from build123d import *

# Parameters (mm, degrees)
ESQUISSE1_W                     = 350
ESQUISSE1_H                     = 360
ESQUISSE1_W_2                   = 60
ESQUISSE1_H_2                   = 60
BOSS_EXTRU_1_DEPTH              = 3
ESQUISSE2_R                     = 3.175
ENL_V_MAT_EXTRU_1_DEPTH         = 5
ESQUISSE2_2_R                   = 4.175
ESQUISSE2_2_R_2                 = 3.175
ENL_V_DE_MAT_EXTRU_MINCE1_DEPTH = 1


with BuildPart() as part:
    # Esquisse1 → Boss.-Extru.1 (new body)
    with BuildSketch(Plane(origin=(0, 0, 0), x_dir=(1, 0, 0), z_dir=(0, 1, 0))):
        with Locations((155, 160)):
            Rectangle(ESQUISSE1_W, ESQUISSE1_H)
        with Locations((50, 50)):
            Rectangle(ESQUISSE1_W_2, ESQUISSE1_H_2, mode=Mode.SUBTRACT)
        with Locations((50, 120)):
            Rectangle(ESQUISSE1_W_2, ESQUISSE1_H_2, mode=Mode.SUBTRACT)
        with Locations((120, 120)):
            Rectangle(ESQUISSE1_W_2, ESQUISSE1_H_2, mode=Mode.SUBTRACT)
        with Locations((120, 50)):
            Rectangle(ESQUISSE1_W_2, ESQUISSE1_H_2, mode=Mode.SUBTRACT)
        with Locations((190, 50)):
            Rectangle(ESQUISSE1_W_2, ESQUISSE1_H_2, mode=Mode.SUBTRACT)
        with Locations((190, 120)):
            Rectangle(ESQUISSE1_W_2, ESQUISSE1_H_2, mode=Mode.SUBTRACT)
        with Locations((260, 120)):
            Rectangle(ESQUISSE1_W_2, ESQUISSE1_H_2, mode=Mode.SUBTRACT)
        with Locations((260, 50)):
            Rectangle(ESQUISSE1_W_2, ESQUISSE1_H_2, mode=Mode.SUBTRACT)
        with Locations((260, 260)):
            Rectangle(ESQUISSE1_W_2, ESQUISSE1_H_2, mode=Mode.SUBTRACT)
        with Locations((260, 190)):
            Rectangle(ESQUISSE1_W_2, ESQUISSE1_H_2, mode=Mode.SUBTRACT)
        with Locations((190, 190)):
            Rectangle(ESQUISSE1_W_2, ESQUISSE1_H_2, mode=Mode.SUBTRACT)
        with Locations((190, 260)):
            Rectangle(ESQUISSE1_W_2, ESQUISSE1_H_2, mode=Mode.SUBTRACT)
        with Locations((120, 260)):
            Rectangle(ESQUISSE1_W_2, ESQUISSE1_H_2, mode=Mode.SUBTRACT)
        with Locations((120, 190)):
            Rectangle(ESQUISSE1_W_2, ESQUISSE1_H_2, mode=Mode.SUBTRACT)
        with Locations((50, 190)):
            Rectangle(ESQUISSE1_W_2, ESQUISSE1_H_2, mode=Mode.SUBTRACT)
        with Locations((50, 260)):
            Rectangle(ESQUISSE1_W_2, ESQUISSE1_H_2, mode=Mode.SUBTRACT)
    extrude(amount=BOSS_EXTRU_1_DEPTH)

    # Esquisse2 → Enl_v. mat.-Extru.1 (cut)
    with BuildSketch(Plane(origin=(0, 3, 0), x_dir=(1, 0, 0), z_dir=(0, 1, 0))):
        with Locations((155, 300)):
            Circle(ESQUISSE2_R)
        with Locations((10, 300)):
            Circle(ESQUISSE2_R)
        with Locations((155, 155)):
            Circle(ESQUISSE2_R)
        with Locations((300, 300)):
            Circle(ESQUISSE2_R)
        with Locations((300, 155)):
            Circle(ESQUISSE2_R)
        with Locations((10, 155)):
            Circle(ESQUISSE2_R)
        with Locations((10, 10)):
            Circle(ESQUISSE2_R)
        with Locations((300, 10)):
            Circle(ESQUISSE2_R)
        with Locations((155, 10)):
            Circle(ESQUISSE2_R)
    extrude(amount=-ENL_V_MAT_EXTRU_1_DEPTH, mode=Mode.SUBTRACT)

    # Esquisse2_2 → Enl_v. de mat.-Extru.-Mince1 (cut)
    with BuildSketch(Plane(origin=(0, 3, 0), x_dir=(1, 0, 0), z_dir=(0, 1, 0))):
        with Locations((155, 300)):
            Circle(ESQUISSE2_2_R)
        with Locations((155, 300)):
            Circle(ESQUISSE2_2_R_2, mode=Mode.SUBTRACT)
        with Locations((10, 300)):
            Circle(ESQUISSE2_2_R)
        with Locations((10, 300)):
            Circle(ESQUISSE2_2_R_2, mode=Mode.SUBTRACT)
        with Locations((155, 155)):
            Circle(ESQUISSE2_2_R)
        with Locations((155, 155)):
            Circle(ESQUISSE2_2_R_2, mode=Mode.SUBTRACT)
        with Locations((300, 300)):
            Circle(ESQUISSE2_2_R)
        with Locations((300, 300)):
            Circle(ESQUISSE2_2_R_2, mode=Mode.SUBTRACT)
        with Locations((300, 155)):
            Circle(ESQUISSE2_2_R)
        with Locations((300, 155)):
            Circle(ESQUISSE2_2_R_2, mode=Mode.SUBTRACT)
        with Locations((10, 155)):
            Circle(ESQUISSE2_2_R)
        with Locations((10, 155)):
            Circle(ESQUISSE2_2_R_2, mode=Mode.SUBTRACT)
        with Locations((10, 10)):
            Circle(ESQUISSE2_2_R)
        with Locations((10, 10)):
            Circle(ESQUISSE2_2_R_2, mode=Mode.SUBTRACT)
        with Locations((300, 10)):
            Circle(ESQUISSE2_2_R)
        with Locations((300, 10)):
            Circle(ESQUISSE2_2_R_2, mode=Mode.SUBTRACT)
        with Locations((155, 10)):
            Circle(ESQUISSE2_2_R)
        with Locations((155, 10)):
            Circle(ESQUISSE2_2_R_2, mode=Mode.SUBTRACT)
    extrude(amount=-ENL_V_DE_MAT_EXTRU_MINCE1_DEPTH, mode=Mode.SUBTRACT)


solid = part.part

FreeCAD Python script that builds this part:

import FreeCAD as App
import Part
import Sketcher

V = App.Vector
Q = App.Units.Quantity


def add_polygon(sketch, points):
    """Adds a closed chain of lines whose ends are joined by coincident constraints."""
    first, n = sketch.GeometryCount, len(points)
    for a, b in zip(points, points[1:] + points[:1]):
        sketch.addGeometry(Part.LineSegment(App.Vector(*a, 0), App.Vector(*b, 0)), False)
    for i in range(n):
        sketch.addConstraint(Sketcher.Constraint("Coincident", first + i, 2, first + (i + 1) % n, 1))

doc = App.newDocument("Part")
params = doc.addObject("Spreadsheet::Sheet", "Params")
for row, (alias, value) in enumerate([
    ("sketch1_width", "350 mm"),
    ("sketch1_width2", "60 mm"),
    ("sketch1_height", "360 mm"),
    ("pad1_length", "3 mm"),
    ("sketch2_diameter", "6.35 mm"),
    ("pocket1_length", "5 mm"),
    ("sketch3_diameter", "8.35 mm"),
    ("sketch3_diameter2", "6.35 mm"),
    ("pocket2_length", "1 mm"),
], start=1):
    params.set(f"A{row}", alias)
    params.set(f"B{row}", "=" + value)
    params.setAlias(f"B{row}", alias)

body = doc.addObject("PartDesign::Body", "Body")

# Sketch on XZ plane
sketch1 = doc.addObject("Sketcher::SketchObject", "Sketch")
body.addObject(sketch1)
sketch1.AttachmentSupport = (doc.XZ_Plane, [""])
sketch1.MapMode = "FlatFace"
add_polygon(sketch1, [(-20, -340), (-20, 20), (330, 20), (330, -340)])  # lines 0-3
add_polygon(sketch1, [(80, -20), (20, -20), (20, -80), (80, -80)])  # lines 4-7
add_polygon(sketch1, [(150, -20), (90, -20), (90, -80), (150, -80)])  # lines 8-11
add_polygon(sketch1, [(80, -90), (20, -90), (20, -150), (80, -150)])  # lines 12-15
add_polygon(sketch1, [(150, -90), (90, -90), (90, -150), (150, -150)])  # lines 16-19
add_polygon(sketch1, [(220, -20), (160, -20), (160, -80), (220, -80)])  # lines 20-23
add_polygon(sketch1, [(290, -20), (230, -20), (230, -80), (290, -80)])  # lines 24-27
add_polygon(sketch1, [(220, -90), (160, -90), (160, -150), (220, -150)])  # lines 28-31
add_polygon(sketch1, [(290, -90), (230, -90), (230, -150), (290, -150)])  # lines 32-35
add_polygon(sketch1, [(80, -160), (20, -160), (20, -220), (80, -220)])  # lines 36-39
add_polygon(sketch1, [(150, -160), (90, -160), (90, -220), (150, -220)])  # lines 40-43
add_polygon(sketch1, [(80, -230), (20, -230), (20, -290), (80, -290)])  # lines 44-47
add_polygon(sketch1, [(150, -230), (90, -230), (90, -290), (150, -290)])  # lines 48-51
add_polygon(sketch1, [(220, -160), (160, -160), (160, -220), (220, -220)])  # lines 52-55
add_polygon(sketch1, [(290, -160), (230, -160), (230, -220), (290, -220)])  # lines 56-59
add_polygon(sketch1, [(220, -230), (160, -230), (160, -290), (220, -290)])  # lines 60-63
add_polygon(sketch1, [(290, -230), (230, -230), (230, -290), (290, -290)])  # lines 64-67
sketch1.addConstraint([
    Sketcher.Constraint("Vertical", 0),
    Sketcher.Constraint("Horizontal", 1),
    Sketcher.Constraint("Vertical", 2),
    Sketcher.Constraint("Horizontal", 3),
    Sketcher.Constraint("Horizontal", 4),
    Sketcher.Constraint("Vertical", 5),
    Sketcher.Constraint("Horizontal", 6),
    Sketcher.Constraint("Vertical", 7),
    Sketcher.Constraint("Horizontal", 8),
    Sketcher.Constraint("Vertical", 9),
    Sketcher.Constraint("Horizontal", 10),
    Sketcher.Constraint("Vertical", 11),
    Sketcher.Constraint("Horizontal", 12),
    Sketcher.Constraint("Vertical", 13),
    Sketcher.Constraint("Horizontal", 14),
    Sketcher.Constraint("Vertical", 15),
    Sketcher.Constraint("Horizontal", 16),
    Sketcher.Constraint("Vertical", 17),
    Sketcher.Constraint("Horizontal", 18),
    Sketcher.Constraint("Vertical", 19),
    Sketcher.Constraint("Horizontal", 20),
    Sketcher.Constraint("Vertical", 21),
    Sketcher.Constraint("Horizontal", 22),
    Sketcher.Constraint("Vertical", 23),
    Sketcher.Constraint("Horizontal", 24),
    Sketcher.Constraint("Vertical", 25),
    Sketcher.Constraint("Horizontal", 26),
    Sketcher.Constraint("Vertical", 27),
    Sketcher.Constraint("Horizontal", 28),
    Sketcher.Constraint("Vertical", 29),
    Sketcher.Constraint("Horizontal", 30),
    Sketcher.Constraint("Vertical", 31),
    Sketcher.Constraint("Horizontal", 32),
    Sketcher.Constraint("Vertical", 33),
    Sketcher.Constraint("Horizontal", 34),
    Sketcher.Constraint("Vertical", 35),
    Sketcher.Constraint("Horizontal", 36),
    Sketcher.Constraint("Vertical", 37),
    Sketcher.Constraint("Horizontal", 38),
    Sketcher.Constraint("Vertical", 39),
    Sketcher.Constraint("Horizontal", 40),
    Sketcher.Constraint("Vertical", 41),
    Sketcher.Constraint("Horizontal", 42),
    Sketcher.Constraint("Vertical", 43),
    Sketcher.Constraint("Horizontal", 44),
    Sketcher.Constraint("Vertical", 45),
    Sketcher.Constraint("Horizontal", 46),
    Sketcher.Constraint("Vertical", 47),
    Sketcher.Constraint("Horizontal", 48),
    Sketcher.Constraint("Vertical", 49),
    Sketcher.Constraint("Horizontal", 50),
    Sketcher.Constraint("Vertical", 51),
    Sketcher.Constraint("Horizontal", 52),
    Sketcher.Constraint("Vertical", 53),
    Sketcher.Constraint("Horizontal", 54),
    Sketcher.Constraint("Vertical", 55),
    Sketcher.Constraint("Horizontal", 56),
    Sketcher.Constraint("Vertical", 57),
    Sketcher.Constraint("Horizontal", 58),
    Sketcher.Constraint("Vertical", 59),
    Sketcher.Constraint("Horizontal", 60),
    Sketcher.Constraint("Vertical", 61),
    Sketcher.Constraint("Horizontal", 62),
    Sketcher.Constraint("Vertical", 63),
    Sketcher.Constraint("Horizontal", 64),
    Sketcher.Constraint("Vertical", 65),
    Sketcher.Constraint("Horizontal", 66),
    Sketcher.Constraint("Vertical", 67),
    Sketcher.Constraint("Symmetric", 0, 2, 4, 2, -1, 1),
    Sketcher.Constraint("Horizontal", 7, 2, 8, 2),
    Sketcher.Constraint("Horizontal", 6, 2, 9, 2),
    Sketcher.Constraint("Horizontal", 15, 2, 16, 2),
    Sketcher.Constraint("Horizontal", 14, 2, 17, 2),
    Sketcher.Constraint("Horizontal", 11, 2, 20, 2),
    Sketcher.Constraint("Horizontal", 10, 2, 21, 2),
    Sketcher.Constraint("Horizontal", 23, 2, 24, 2),
    Sketcher.Constraint("Horizontal", 22, 2, 25, 2),
    Sketcher.Constraint("Horizontal", 19, 2, 28, 2),
    Sketcher.Constraint("Horizontal", 18, 2, 29, 2),
    Sketcher.Constraint("Horizontal", 31, 2, 32, 2),
    Sketcher.Constraint("Horizontal", 30, 2, 33, 2),
    Sketcher.Constraint("Horizontal", 39, 2, 40, 2),
    Sketcher.Constraint("Horizontal", 38, 2, 41, 2),
    Sketcher.Constraint("Horizontal", 47, 2, 48, 2),
    Sketcher.Constraint("Horizontal", 46, 2, 49, 2),
    Sketcher.Constraint("Horizontal", 43, 2, 52, 2),
    Sketcher.Constraint("Horizontal", 42, 2, 53, 2),
    Sketcher.Constraint("Horizontal", 55, 2, 56, 2),
    Sketcher.Constraint("Horizontal", 54, 2, 57, 2),
    Sketcher.Constraint("Horizontal", 51, 2, 60, 2),
    Sketcher.Constraint("Horizontal", 50, 2, 61, 2),
    Sketcher.Constraint("Horizontal", 63, 2, 64, 2),
    Sketcher.Constraint("Horizontal", 62, 2, 65, 2),
    Sketcher.Constraint("Vertical", 5, 2, 12, 2),
    Sketcher.Constraint("Vertical", 7, 2, 14, 2),
    Sketcher.Constraint("Vertical", 9, 2, 16, 2),
    Sketcher.Constraint("Vertical", 11, 2, 18, 2),
    Sketcher.Constraint("Vertical", 21, 2, 28, 2),
    Sketcher.Constraint("Vertical", 23, 2, 30, 2),
    Sketcher.Constraint("Vertical", 25, 2, 32, 2),
    Sketcher.Constraint("Vertical", 27, 2, 34, 2),
    Sketcher.Constraint("Vertical", 13, 2, 36, 2),
    Sketcher.Constraint("Vertical", 15, 2, 38, 2),
    Sketcher.Constraint("Vertical", 17, 2, 40, 2),
    Sketcher.Constraint("Vertical", 19, 2, 42, 2),
    Sketcher.Constraint("Vertical", 37, 2, 44, 2),
    Sketcher.Constraint("Vertical", 39, 2, 46, 2),
    Sketcher.Constraint("Vertical", 41, 2, 48, 2),
    Sketcher.Constraint("Vertical", 43, 2, 50, 2),
    Sketcher.Constraint("Vertical", 29, 2, 52, 2),
    Sketcher.Constraint("Vertical", 31, 2, 54, 2),
    Sketcher.Constraint("Vertical", 33, 2, 56, 2),
    Sketcher.Constraint("Vertical", 35, 2, 58, 2),
    Sketcher.Constraint("Vertical", 53, 2, 60, 2),
    Sketcher.Constraint("Vertical", 55, 2, 62, 2),
    Sketcher.Constraint("Vertical", 57, 2, 64, 2),
    Sketcher.Constraint("Vertical", 59, 2, 66, 2),
    Sketcher.Constraint("Equal", 6, 8),
    Sketcher.Constraint("Equal", 18, 20),
    Sketcher.Constraint("Equal", 22, 24),
    Sketcher.Constraint("Equal", 66, 5),
    Sketcher.Constraint("Equal", 11, 13),
    Sketcher.Constraint("Equal", 35, 37),
    Sketcher.Constraint("Equal", 43, 45),
    Sketcher.Constraint("DistanceX", 1, 1, 1, 2, Q("350 mm")),
    Sketcher.Constraint("DistanceX", 4, 2, 4, 1, Q("60 mm")),
    Sketcher.Constraint("DistanceY", 0, 1, 0, 2, Q("360 mm")),
    Sketcher.Constraint("DistanceX", 0, 2, -1, 1, Q("20 mm")),
    Sketcher.Constraint("DistanceY", -1, 1, 0, 2, Q("20 mm")),
    Sketcher.Constraint("DistanceX", -1, 1, 8, 2, Q("90 mm")),
    Sketcher.Constraint("DistanceY", 12, 2, -1, 1, Q("90 mm")),
    Sketcher.Constraint("DistanceX", -1, 1, 20, 2, Q("160 mm")),
    Sketcher.Constraint("DistanceX", -1, 1, 24, 2, Q("230 mm")),
    Sketcher.Constraint("DistanceY", 36, 2, -1, 1, Q("160 mm")),
    Sketcher.Constraint("DistanceY", 44, 2, -1, 1, Q("230 mm")),
])
sketch1.setExpression("Constraints[192]", "Params.sketch1_width")
sketch1.setExpression("Constraints[193]", "Params.sketch1_width2")
sketch1.setExpression("Constraints[194]", "Params.sketch1_height")
pad1 = doc.addObject("PartDesign::Pad", "Pad")
body.addObject(pad1)
pad1.Profile = sketch1
pad1.setExpression("Length", "Params.pad1_length")
pad1.Reversed = True

# Sketch on XZ plane
sketch2 = doc.addObject("Sketcher::SketchObject", "Sketch001")
body.addObject(sketch2)
sketch2.AttachmentSupport = (doc.XZ_Plane, [""])
sketch2.MapMode = "FlatFace"
sketch2.AttachmentOffset = App.Placement(V(0, 0, -3), App.Rotation())
sketch2.addGeometry([
    Part.Circle(V(155, -300, 0), V(0, 0, 1), 3.175),  # 0
    Part.Circle(V(10, -300, 0), V(0, 0, 1), 3.175),  # 1
    Part.Circle(V(155, -155, 0), V(0, 0, 1), 3.175),  # 2
    Part.Circle(V(300, -300, 0), V(0, 0, 1), 3.175),  # 3
    Part.Circle(V(300, -155, 0), V(0, 0, 1), 3.175),  # 4
    Part.Circle(V(10, -155, 0), V(0, 0, 1), 3.175),  # 5
    Part.Circle(V(10, -10, 0), V(0, 0, 1), 3.175),  # 6
    Part.Circle(V(300, -10, 0), V(0, 0, 1), 3.175),  # 7
    Part.Circle(V(155, -10, 0), V(0, 0, 1), 3.175),  # 8
], False)
sketch2.addConstraint([
    Sketcher.Constraint("Equal", 0, 1),
    Sketcher.Constraint("Equal", 1, 2),
    Sketcher.Constraint("Equal", 2, 3),
    Sketcher.Constraint("Equal", 3, 4),
    Sketcher.Constraint("Equal", 4, 5),
    Sketcher.Constraint("Equal", 5, 6),
    Sketcher.Constraint("Equal", 6, 7),
    Sketcher.Constraint("Equal", 7, 8),
    Sketcher.Constraint("Horizontal", 0, 3, 1, 3),
    Sketcher.Constraint("Horizontal", 1, 3, 3, 3),
    Sketcher.Constraint("Horizontal", 2, 3, 4, 3),
    Sketcher.Constraint("Horizontal", 4, 3, 5, 3),
    Sketcher.Constraint("Horizontal", 6, 3, 7, 3),
    Sketcher.Constraint("Horizontal", 7, 3, 8, 3),
    Sketcher.Constraint("Vertical", 0, 3, 2, 3),
    Sketcher.Constraint("Vertical", 3, 3, 4, 3),
    Sketcher.Constraint("Vertical", 1, 3, 5, 3),
    Sketcher.Constraint("Vertical", 5, 3, 6, 3),
    Sketcher.Constraint("Vertical", 4, 3, 7, 3),
    Sketcher.Constraint("Vertical", 2, 3, 8, 3),
    Sketcher.Constraint("Diameter", 0, Q("6.35 mm")),
    Sketcher.Constraint("DistanceX", -1, 1, 0, 3, Q("155 mm")),
    Sketcher.Constraint("DistanceY", 0, 3, -1, 1, Q("300 mm")),
    Sketcher.Constraint("DistanceX", -1, 1, 1, 3, Q("10 mm")),
    Sketcher.Constraint("DistanceY", 2, 3, -1, 1, Q("155 mm")),
    Sketcher.Constraint("DistanceX", -1, 1, 3, 3, Q("300 mm")),
    Sketcher.Constraint("DistanceY", 6, 3, -1, 1, Q("10 mm")),
])
sketch2.setExpression("Constraints[20]", "Params.sketch2_diameter")
pocket1 = doc.addObject("PartDesign::Pocket", "Pocket")
body.addObject(pocket1)
pocket1.Profile = sketch2
pocket1.setExpression("Length", "Params.pocket1_length")
pocket1.Reversed = True

# Sketch on XZ plane
sketch3 = doc.addObject("Sketcher::SketchObject", "Sketch002")
body.addObject(sketch3)
sketch3.AttachmentSupport = (doc.XZ_Plane, [""])
sketch3.MapMode = "FlatFace"
sketch3.AttachmentOffset = App.Placement(V(0, 0, -3), App.Rotation())
sketch3.addGeometry([
    Part.Circle(V(155, -300, 0), V(0, 0, 1), 4.175),  # 0
    Part.Circle(V(155, -300, 0), V(0, 0, 1), 3.175),  # 1
    Part.Circle(V(10, -300, 0), V(0, 0, 1), 4.175),  # 2
    Part.Circle(V(10, -300, 0), V(0, 0, 1), 3.175),  # 3
    Part.Circle(V(155, -155, 0), V(0, 0, 1), 4.175),  # 4
    Part.Circle(V(155, -155, 0), V(0, 0, 1), 3.175),  # 5
    Part.Circle(V(300, -300, 0), V(0, 0, 1), 4.175),  # 6
    Part.Circle(V(300, -300, 0), V(0, 0, 1), 3.175),  # 7
    Part.Circle(V(300, -155, 0), V(0, 0, 1), 4.175),  # 8
    Part.Circle(V(300, -155, 0), V(0, 0, 1), 3.175),  # 9
    Part.Circle(V(10, -155, 0), V(0, 0, 1), 4.175),  # 10
    Part.Circle(V(10, -155, 0), V(0, 0, 1), 3.175),  # 11
    Part.Circle(V(10, -10, 0), V(0, 0, 1), 4.175),  # 12
    Part.Circle(V(10, -10, 0), V(0, 0, 1), 3.175),  # 13
    Part.Circle(V(300, -10, 0), V(0, 0, 1), 4.175),  # 14
    Part.Circle(V(300, -10, 0), V(0, 0, 1), 3.175),  # 15
    Part.Circle(V(155, -10, 0), V(0, 0, 1), 4.175),  # 16
    Part.Circle(V(155, -10, 0), V(0, 0, 1), 3.175),  # 17
], False)
sketch3.addConstraint([
    Sketcher.Constraint("Coincident", 1, 3, 0, 3),
    Sketcher.Constraint("Coincident", 3, 3, 2, 3),
    Sketcher.Constraint("Coincident", 5, 3, 4, 3),
    Sketcher.Constraint("Coincident", 7, 3, 6, 3),
    Sketcher.Constraint("Coincident", 9, 3, 8, 3),
    Sketcher.Constraint("Coincident", 11, 3, 10, 3),
    Sketcher.Constraint("Coincident", 13, 3, 12, 3),
    Sketcher.Constraint("Coincident", 15, 3, 14, 3),
    Sketcher.Constraint("Coincident", 17, 3, 16, 3),
    Sketcher.Constraint("Equal", 0, 2),
    Sketcher.Constraint("Equal", 1, 3),
    Sketcher.Constraint("Equal", 2, 4),
    Sketcher.Constraint("Equal", 3, 5),
    Sketcher.Constraint("Equal", 4, 6),
    Sketcher.Constraint("Equal", 5, 7),
    Sketcher.Constraint("Equal", 6, 8),
    Sketcher.Constraint("Equal", 7, 9),
    Sketcher.Constraint("Equal", 8, 10),
    Sketcher.Constraint("Equal", 9, 11),
    Sketcher.Constraint("Equal", 10, 12),
    Sketcher.Constraint("Equal", 11, 13),
    Sketcher.Constraint("Equal", 12, 14),
    Sketcher.Constraint("Equal", 13, 15),
    Sketcher.Constraint("Equal", 14, 16),
    Sketcher.Constraint("Equal", 15, 17),
    Sketcher.Constraint("Horizontal", 1, 3, 2, 3),
    Sketcher.Constraint("Horizontal", 3, 3, 6, 3),
    Sketcher.Constraint("Horizontal", 5, 3, 8, 3),
    Sketcher.Constraint("Horizontal", 9, 3, 10, 3),
    Sketcher.Constraint("Horizontal", 13, 3, 14, 3),
    Sketcher.Constraint("Horizontal", 15, 3, 16, 3),
    Sketcher.Constraint("Vertical", 1, 3, 4, 3),
    Sketcher.Constraint("Vertical", 7, 3, 8, 3),
    Sketcher.Constraint("Vertical", 3, 3, 10, 3),
    Sketcher.Constraint("Vertical", 11, 3, 12, 3),
    Sketcher.Constraint("Vertical", 9, 3, 14, 3),
    Sketcher.Constraint("Vertical", 5, 3, 16, 3),
    Sketcher.Constraint("Diameter", 0, Q("8.35 mm")),
    Sketcher.Constraint("Diameter", 1, Q("6.35 mm")),
    Sketcher.Constraint("DistanceX", -1, 1, 0, 3, Q("155 mm")),
    Sketcher.Constraint("DistanceY", 0, 3, -1, 1, Q("300 mm")),
    Sketcher.Constraint("DistanceX", -1, 1, 2, 3, Q("10 mm")),
    Sketcher.Constraint("DistanceY", 4, 3, -1, 1, Q("155 mm")),
    Sketcher.Constraint("DistanceX", -1, 1, 6, 3, Q("300 mm")),
    Sketcher.Constraint("DistanceY", 12, 3, -1, 1, Q("10 mm")),
])
sketch3.setExpression("Constraints[37]", "Params.sketch3_diameter")
sketch3.setExpression("Constraints[38]", "Params.sketch3_diameter2")
pocket2 = doc.addObject("PartDesign::Pocket", "Pocket001")
body.addObject(pocket2)
pocket2.Profile = sketch3
pocket2.setExpression("Length", "Params.pocket2_length")
pocket2.Reversed = True

doc.recompute()
